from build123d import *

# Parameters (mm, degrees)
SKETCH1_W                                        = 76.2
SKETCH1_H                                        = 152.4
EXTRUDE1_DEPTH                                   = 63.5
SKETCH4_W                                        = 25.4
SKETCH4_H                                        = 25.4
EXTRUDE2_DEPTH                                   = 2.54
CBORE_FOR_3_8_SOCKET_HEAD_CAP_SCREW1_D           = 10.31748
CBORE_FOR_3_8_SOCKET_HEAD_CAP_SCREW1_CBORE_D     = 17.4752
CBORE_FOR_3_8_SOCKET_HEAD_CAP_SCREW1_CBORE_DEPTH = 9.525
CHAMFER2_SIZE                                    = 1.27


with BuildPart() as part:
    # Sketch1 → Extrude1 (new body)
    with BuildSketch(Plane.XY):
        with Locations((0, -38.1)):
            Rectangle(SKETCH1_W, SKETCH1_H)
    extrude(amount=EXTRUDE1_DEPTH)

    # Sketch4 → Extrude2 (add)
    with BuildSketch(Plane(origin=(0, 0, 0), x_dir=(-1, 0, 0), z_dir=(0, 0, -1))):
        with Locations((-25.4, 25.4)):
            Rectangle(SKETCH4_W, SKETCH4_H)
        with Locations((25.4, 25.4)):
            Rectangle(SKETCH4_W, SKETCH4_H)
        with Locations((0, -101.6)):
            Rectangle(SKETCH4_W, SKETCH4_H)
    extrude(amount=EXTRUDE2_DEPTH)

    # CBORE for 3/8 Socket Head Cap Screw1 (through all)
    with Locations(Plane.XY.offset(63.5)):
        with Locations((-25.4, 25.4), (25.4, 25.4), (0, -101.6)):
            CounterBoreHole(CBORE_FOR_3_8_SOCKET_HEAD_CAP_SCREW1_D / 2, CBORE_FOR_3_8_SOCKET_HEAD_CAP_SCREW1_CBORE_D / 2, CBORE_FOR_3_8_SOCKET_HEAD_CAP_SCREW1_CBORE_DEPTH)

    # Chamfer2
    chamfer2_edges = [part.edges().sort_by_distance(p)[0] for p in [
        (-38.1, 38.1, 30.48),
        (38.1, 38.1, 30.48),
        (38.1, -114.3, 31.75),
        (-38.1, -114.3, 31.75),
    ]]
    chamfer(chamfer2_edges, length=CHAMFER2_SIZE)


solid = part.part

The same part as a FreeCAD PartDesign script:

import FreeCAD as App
import Part
import Sketcher
Q = App.Units.Quantity


def edges_at(feature, points):
    """Names of the edges that pass closest to the given points."""
    edges = feature.Shape.Edges
    near = lambda p: min(range(len(edges)), key=lambda i: edges[i].distToShape(Part.Vertex(*p))[0])
    return sorted({f"Edge{near(p) + 1}" for p in points})


def add_polygon(sketch, points):
    """Adds a closed chain of lines whose ends are joined by coincident constraints."""
    first, n = sketch.GeometryCount, len(points)
    for a, b in zip(points, points[1:] + points[:1]):
        sketch.addGeometry(Part.LineSegment(App.Vector(*a, 0), App.Vector(*b, 0)), False)
    for i in range(n):
        sketch.addConstraint(Sketcher.Constraint("Coincident", first + i, 2, first + (i + 1) % n, 1))

doc = App.newDocument("Part")
params = doc.addObject("Spreadsheet::Sheet", "Params")
for row, (alias, value) in enumerate([
    ("sketch1_width", "3 in"),
    ("sketch1_height", "6 in"),
    ("pad1_length", "2.5 in"),
    ("sketch2_width", "1 in"),
    ("pad2_length", "0.1 in"),
    ("hole_diameter", "0.4062 in"),
    ("hole_cbore_diameter", "0.688 in"),
    ("hole_cbore_depth", "0.375 in"),
    ("chamfer_size", "0.05 in"),
], start=1):
    params.set(f"A{row}", alias)
    params.set(f"B{row}", "=" + value)
    params.setAlias(f"B{row}", alias)

body = doc.addObject("PartDesign::Body", "Body")

# Sketch on XY plane
sketch1 = doc.addObject("Sketcher::SketchObject", "Sketch")
body.addObject(sketch1)
sketch1.AttachmentSupport = (doc.XY_Plane, [""])
sketch1.MapMode = "FlatFace"
add_polygon(sketch1, [(-38, 38), (-38, -114), (38, -114), (38, 38)])  # lines 0-3
sketch1.addConstraint(Sketcher.Constraint("Vertical", 0))
sketch1.addConstraint(Sketcher.Constraint("Horizontal", 1))
sketch1.addConstraint(Sketcher.Constraint("Vertical", 2))
sketch1.addConstraint(Sketcher.Constraint("Horizontal", 3))
sketch1.addConstraint(Sketcher.Constraint("DistanceX", 1, 1, 1, 2, Q("3 in")))
sketch1.addConstraint(Sketcher.Constraint("DistanceY", 0, 2, 0, 1, Q("6 in")))
sketch1.addConstraint(Sketcher.Constraint("DistanceX", 0, 2, -1, 1, Q("1.5 in")))
sketch1.addConstraint(Sketcher.Constraint("DistanceY", 0, 2, -1, 1, Q("4.5 in")))
sketch1.setExpression("Constraints[8]", "Params.sketch1_width")
sketch1.setExpression("Constraints[9]", "Params.sketch1_height")
pad1 = doc.addObject("PartDesign::Pad", "Pad")
body.addObject(pad1)
pad1.Profile = sketch1
pad1.setExpression("Length", "Params.pad1_length")

# Sketch on XY plane
sketch2 = doc.addObject("Sketcher::SketchObject", "Sketch001")
body.addObject(sketch2)
sketch2.AttachmentSupport = (doc.XY_Plane, [""])
sketch2.MapMode = "FlatFace"
add_polygon(sketch2, [(38, 38), (38, 13), (13, 13), (13, 38)])  # lines 0-3
add_polygon(sketch2, [(-13, 38), (-13, 13), (-38, 13), (-38, 38)])  # lines 4-7
add_polygon(sketch2, [(13, -89), (13, -114), (-13, -114), (-13, -89)])  # lines 8-11
sketch2.addConstraint(Sketcher.Constraint("Vertical", 0))
sketch2.addConstraint(Sketcher.Constraint("Horizontal", 1))
sketch2.addConstraint(Sketcher.Constraint("Vertical", 2))
sketch2.addConstraint(Sketcher.Constraint("Horizontal", 3))
sketch2.addConstraint(Sketcher.Constraint("Vertical", 4))
sketch2.addConstraint(Sketcher.Constraint("Horizontal", 5))
sketch2.addConstraint(Sketcher.Constraint("Vertical", 6))
sketch2.addConstraint(Sketcher.Constraint("Horizontal", 7))
sketch2.addConstraint(Sketcher.Constraint("Vertical", 8))
sketch2.addConstraint(Sketcher.Constraint("Horizontal", 9))
sketch2.addConstraint(Sketcher.Constraint("Vertical", 10))
sketch2.addConstraint(Sketcher.Constraint("Horizontal", 11))
sketch2.addConstraint(Sketcher.Constraint("Symmetric", 1, 2, 4, 2, -2))
sketch2.addConstraint(Sketcher.Constraint("Symmetric", 3, 2, 6, 2, -2))
sketch2.addConstraint(Sketcher.Constraint("Vertical", 2, 2, 8, 2))
sketch2.addConstraint(Sketcher.Constraint("Vertical", 7, 2, 9, 2))
sketch2.addConstraint(Sketcher.Constraint("Equal", 7, 9))
sketch2.addConstraint(Sketcher.Constraint("Equal", 11, 0))
sketch2.addConstraint(Sketcher.Constraint("Equal", 6, 8))
sketch2.addConstraint(Sketcher.Constraint("DistanceX", 1, 2, 1, 1, Q("1 in")))
sketch2.addConstraint(Sketcher.Constraint("DistanceY", 8, 2, 1, 2, Q("5 in")))
sketch2.addConstraint(Sketcher.Constraint("DistanceY", -1, 1, 0, 2, Q("0.5 in")))
sketch2.setExpression("Constraints[31]", "Params.sketch2_width")
pad2 = doc.addObject("PartDesign::Pad", "Pad001")
body.addObject(pad2)
pad2.Profile = sketch2
pad2.setExpression("Length", "Params.pad2_length")
pad2.Reversed = True

# Sketch on XY plane
sketch3 = doc.addObject("Sketcher::SketchObject", "Sketch002")
body.addObject(sketch3)
sketch3.AttachmentSupport = (doc.XY_Plane, [""])
sketch3.MapMode = "FlatFace"
sketch3.AttachmentOffset = App.Placement(App.Vector(0, 0, 2.5 * 25.4), App.Rotation())
sketch3.addGeometry(Part.Circle(App.Vector(-25, 25, 0), App.Vector(0, 0, 1), 5), False)
sketch3.addGeometry(Part.Circle(App.Vector(25, 25, 0), App.Vector(0, 0, 1), 5), False)
sketch3.addGeometry(Part.Circle(App.Vector(0, -102, 0), App.Vector(0, 0, 1), 5), False)
sketch3.addConstraint(Sketcher.Constraint("Equal", 0, 1))
sketch3.addConstraint(Sketcher.Constraint("Equal", 1, 2))
sketch3.addConstraint(Sketcher.Constraint("Symmetric", 0, 3, 1, 3, -2))
sketch3.addConstraint(Sketcher.Constraint("PointOnObject", 2, 3, -2))
sketch3.addConstraint(Sketcher.Constraint("DistanceX", 0, 3, -1, 1, Q("1 in")))
sketch3.addConstraint(Sketcher.Constraint("DistanceY", -1, 1, 0, 3, Q("1 in")))
sketch3.addConstraint(Sketcher.Constraint("DistanceY", 2, 3, -1, 1, Q("4 in")))
sketch3.addConstraint(Sketcher.Constraint("Diameter", 0, Q("0.4062 in")))
doc.recompute()
hole = doc.addObject("PartDesign::Hole", "Hole")
body.addObject(hole)
hole.Profile = sketch3
hole.ThreadType = "None"
hole.setExpression("Diameter", "Params.hole_diameter")
hole.DepthType = "ThroughAll"
hole.HoleCutType = "Counterbore"
hole.setExpression("HoleCutDiameter", "Params.hole_cbore_diameter")
hole.setExpression("HoleCutDepth", "Params.hole_cbore_depth")
doc.recompute()

chamfer = doc.addObject("PartDesign::Chamfer", "Chamfer")
body.addObject(chamfer)
chamfer.Base = (hole, edges_at(hole, [
    (-38.1, 38.1, 30.48),
    (38.1, 38.1, 30.48),
    (38.1, -114.3, 31.75),
    (-38.1, -114.3, 31.75),
]))
chamfer.setExpression("Size", "Params.chamfer_size")

doc.recompute()
